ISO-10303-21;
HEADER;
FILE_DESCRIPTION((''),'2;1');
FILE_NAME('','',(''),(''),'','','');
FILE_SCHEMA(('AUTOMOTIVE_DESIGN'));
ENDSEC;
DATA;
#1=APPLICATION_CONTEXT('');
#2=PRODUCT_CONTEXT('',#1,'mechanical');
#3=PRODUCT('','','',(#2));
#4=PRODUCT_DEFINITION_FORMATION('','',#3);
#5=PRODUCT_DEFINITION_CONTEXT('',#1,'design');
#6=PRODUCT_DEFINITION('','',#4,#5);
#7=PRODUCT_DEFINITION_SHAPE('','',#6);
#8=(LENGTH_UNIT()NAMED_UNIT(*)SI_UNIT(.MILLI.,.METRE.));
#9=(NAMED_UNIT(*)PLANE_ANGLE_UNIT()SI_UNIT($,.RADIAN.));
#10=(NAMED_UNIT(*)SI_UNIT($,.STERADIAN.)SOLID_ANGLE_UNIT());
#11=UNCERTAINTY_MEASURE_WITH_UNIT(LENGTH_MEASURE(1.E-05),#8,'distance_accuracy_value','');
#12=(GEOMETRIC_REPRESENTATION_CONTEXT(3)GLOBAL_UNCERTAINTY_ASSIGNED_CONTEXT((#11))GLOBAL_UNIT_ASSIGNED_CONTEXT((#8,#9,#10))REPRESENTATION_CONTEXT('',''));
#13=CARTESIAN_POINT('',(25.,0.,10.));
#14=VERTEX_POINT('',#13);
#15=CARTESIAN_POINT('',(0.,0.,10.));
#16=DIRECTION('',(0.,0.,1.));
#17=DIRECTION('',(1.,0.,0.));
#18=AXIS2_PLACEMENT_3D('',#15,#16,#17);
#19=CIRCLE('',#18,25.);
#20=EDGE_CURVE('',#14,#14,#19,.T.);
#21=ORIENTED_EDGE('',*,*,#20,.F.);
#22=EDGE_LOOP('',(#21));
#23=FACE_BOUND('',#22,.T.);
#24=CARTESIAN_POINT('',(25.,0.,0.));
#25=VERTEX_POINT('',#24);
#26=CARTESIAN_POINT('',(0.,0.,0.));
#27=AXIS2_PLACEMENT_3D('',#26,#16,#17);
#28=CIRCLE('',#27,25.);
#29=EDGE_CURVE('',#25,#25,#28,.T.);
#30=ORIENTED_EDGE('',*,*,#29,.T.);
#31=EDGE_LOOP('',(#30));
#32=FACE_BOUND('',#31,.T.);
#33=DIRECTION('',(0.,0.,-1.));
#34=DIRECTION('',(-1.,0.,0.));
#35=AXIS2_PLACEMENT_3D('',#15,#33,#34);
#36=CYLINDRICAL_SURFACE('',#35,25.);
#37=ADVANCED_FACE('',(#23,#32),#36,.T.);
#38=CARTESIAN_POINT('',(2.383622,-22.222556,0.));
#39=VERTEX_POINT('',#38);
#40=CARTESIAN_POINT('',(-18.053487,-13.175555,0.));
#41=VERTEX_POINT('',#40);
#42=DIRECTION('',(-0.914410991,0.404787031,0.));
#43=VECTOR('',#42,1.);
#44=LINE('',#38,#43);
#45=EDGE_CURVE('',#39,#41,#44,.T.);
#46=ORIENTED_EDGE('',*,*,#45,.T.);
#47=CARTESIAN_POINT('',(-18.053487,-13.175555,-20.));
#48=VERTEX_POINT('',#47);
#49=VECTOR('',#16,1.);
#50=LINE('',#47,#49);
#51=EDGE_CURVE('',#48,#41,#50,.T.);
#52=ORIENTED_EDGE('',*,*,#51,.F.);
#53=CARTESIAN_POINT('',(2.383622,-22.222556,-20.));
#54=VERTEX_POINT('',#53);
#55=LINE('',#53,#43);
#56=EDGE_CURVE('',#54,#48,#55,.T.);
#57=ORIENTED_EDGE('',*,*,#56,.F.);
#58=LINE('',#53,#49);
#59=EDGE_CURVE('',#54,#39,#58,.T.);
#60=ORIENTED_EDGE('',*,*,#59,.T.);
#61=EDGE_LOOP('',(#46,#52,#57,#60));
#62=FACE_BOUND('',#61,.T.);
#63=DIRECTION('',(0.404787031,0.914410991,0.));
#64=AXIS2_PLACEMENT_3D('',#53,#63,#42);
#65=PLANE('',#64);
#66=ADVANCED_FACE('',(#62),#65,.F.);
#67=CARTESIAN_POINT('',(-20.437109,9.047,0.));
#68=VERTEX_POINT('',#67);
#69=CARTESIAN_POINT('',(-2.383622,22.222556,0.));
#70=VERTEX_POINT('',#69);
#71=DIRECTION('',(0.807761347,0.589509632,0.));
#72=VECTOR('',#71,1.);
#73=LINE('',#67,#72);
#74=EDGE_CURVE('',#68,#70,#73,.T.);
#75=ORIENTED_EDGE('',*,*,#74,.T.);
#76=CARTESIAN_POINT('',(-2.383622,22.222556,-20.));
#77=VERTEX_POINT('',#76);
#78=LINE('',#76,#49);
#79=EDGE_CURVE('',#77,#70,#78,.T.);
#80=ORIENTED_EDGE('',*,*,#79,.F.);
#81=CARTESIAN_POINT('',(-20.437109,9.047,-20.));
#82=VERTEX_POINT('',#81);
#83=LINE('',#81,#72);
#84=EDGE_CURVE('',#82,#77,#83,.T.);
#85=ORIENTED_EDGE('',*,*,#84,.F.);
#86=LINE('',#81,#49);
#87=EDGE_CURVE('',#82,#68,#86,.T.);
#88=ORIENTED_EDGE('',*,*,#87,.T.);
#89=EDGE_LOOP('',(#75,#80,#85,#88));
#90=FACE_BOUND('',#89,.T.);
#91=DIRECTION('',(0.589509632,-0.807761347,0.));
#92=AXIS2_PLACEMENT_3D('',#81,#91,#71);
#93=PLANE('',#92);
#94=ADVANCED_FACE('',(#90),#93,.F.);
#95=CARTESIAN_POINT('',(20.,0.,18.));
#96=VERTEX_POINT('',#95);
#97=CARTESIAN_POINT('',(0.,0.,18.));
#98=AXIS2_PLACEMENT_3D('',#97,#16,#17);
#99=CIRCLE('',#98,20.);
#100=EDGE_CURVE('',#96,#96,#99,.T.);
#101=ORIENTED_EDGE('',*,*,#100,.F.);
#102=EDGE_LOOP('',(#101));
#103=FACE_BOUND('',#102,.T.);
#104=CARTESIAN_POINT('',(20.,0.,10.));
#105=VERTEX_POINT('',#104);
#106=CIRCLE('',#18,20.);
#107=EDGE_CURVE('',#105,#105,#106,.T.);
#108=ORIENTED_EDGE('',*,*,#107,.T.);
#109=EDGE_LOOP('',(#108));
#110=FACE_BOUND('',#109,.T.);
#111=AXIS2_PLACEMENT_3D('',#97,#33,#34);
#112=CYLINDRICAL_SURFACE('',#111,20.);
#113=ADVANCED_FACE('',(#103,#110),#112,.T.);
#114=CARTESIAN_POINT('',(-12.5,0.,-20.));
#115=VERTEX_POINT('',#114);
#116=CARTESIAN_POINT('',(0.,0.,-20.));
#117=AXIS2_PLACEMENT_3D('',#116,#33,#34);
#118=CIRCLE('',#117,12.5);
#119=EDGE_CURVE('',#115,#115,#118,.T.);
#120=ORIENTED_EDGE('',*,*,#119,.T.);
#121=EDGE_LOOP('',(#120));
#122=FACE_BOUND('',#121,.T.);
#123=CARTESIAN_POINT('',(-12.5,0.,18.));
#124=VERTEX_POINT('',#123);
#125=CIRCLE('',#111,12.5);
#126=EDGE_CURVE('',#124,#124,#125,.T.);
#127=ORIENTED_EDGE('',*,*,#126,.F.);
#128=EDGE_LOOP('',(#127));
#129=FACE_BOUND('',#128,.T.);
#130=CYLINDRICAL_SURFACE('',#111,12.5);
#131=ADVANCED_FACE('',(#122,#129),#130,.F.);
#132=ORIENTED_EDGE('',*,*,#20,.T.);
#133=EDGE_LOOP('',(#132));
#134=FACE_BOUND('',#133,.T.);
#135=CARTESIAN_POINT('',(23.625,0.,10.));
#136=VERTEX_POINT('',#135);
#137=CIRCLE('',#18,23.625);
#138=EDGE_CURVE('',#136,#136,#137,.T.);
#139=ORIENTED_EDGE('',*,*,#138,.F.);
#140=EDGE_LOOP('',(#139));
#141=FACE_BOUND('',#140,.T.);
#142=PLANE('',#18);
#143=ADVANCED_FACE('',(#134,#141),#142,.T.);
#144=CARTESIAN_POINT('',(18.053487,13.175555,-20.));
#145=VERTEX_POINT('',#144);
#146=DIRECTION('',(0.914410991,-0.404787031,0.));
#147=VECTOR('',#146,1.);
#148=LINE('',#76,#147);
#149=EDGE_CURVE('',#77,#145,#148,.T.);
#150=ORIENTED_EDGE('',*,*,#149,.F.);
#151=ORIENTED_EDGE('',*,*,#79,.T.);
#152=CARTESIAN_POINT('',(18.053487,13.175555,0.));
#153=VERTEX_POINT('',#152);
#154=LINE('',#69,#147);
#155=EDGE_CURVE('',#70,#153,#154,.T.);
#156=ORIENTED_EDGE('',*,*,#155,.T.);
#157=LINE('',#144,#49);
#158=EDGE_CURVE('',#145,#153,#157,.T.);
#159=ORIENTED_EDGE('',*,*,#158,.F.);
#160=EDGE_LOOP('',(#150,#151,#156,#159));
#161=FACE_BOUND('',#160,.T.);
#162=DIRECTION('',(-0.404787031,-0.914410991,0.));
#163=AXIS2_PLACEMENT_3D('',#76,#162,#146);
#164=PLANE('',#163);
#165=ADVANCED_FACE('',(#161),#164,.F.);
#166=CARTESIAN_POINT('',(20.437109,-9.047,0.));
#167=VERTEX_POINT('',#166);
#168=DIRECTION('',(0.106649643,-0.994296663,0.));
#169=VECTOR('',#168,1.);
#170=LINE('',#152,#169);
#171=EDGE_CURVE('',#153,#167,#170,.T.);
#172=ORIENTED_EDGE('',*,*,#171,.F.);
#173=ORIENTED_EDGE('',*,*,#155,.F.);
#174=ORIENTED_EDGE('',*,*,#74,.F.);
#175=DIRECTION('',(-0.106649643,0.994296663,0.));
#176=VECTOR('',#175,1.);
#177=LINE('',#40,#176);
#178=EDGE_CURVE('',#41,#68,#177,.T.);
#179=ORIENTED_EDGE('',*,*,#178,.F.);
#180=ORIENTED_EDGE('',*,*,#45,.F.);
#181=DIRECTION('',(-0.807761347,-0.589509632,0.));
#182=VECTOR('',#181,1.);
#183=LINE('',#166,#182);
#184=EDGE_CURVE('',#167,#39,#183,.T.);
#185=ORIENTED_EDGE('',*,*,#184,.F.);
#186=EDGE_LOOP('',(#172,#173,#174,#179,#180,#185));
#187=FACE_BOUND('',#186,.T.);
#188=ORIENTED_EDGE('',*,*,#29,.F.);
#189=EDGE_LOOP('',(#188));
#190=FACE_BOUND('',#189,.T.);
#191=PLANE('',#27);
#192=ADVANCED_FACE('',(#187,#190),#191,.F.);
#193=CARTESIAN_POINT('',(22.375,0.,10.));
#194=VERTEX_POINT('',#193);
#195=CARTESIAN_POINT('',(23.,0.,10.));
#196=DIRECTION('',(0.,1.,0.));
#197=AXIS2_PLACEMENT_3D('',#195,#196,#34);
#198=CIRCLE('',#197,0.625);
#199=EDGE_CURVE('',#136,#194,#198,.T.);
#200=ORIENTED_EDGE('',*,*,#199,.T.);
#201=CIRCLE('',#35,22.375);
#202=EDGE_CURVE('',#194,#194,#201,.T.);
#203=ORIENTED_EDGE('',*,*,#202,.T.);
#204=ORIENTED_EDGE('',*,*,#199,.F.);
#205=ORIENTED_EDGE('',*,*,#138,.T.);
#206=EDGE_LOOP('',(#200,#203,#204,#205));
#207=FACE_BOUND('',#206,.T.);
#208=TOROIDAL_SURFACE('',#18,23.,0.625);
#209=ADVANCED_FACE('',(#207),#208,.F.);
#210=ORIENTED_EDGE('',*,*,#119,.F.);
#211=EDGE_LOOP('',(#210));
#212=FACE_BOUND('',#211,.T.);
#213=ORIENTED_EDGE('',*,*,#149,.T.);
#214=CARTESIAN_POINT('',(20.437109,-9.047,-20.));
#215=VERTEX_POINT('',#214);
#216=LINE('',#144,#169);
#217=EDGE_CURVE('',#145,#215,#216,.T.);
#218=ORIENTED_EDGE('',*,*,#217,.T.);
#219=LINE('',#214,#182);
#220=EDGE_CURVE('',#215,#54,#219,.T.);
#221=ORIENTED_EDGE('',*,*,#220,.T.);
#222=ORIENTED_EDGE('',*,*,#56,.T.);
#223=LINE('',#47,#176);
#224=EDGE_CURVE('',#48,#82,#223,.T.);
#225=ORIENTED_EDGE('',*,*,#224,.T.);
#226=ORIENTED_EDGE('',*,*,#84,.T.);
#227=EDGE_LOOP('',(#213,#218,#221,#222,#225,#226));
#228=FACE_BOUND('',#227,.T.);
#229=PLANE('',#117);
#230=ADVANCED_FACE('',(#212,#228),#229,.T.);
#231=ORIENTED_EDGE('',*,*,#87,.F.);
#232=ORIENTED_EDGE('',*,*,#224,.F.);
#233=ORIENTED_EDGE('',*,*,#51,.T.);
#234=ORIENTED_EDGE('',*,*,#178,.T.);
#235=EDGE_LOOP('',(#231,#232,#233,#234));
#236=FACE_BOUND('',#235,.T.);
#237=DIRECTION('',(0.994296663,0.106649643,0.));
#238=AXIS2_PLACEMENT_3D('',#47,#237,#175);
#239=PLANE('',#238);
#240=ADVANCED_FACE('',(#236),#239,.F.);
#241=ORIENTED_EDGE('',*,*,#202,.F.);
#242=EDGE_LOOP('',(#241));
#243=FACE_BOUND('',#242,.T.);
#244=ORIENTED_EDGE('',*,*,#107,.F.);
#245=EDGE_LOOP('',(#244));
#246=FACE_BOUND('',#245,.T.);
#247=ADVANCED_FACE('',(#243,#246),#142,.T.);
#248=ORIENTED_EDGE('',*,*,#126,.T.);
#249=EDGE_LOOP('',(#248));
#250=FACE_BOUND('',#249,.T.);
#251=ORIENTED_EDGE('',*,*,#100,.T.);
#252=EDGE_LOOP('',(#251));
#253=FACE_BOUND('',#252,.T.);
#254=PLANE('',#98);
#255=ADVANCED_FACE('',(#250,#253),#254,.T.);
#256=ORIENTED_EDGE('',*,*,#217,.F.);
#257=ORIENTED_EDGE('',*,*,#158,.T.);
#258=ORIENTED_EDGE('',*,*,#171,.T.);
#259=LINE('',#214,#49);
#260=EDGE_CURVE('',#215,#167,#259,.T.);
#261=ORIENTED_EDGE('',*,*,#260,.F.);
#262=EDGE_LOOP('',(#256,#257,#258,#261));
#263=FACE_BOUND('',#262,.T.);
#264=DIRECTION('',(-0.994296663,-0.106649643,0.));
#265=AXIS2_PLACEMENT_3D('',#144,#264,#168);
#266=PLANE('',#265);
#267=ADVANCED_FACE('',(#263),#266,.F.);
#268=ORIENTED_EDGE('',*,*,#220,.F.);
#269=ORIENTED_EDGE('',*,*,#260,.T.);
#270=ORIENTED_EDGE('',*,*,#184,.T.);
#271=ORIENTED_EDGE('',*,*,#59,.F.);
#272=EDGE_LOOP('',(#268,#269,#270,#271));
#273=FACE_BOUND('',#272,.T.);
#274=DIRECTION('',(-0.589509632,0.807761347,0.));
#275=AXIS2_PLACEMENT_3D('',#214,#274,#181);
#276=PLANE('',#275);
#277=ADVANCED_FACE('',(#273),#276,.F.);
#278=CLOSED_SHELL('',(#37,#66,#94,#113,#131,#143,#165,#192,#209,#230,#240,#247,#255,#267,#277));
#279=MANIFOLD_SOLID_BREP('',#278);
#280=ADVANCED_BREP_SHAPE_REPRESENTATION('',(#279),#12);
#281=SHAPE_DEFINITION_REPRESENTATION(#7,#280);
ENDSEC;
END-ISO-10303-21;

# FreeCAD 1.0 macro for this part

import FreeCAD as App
import Part
import Sketcher
Q = App.Units.Quantity

doc = App.newDocument("Part")
body = doc.addObject("PartDesign::Body", "Body")

sketch1 = body.newObject("Sketcher::SketchObject", "Sketch")
sketch1.AttachmentSupport = (doc.getObject("XY_Plane"), [""])
sketch1.MapMode = "FlatFace"
sketch1.addGeometry(Part.Circle(App.Vector(0, 0, 0), App.Vector(0, 0, 1), 25), False)
sketch1.addConstraint(Sketcher.Constraint("Coincident", 0, 3, -1, 1))
sketch1.addConstraint(Sketcher.Constraint("Diameter", 0, Q("50 mm")))
pad1 = body.newObject("PartDesign::Pad", "Pad")
pad1.Profile = sketch1
pad1.Length = 10

sketch2 = body.newObject("Sketcher::SketchObject", "Sketch001")
sketch2.AttachmentSupport = (doc.getObject("XY_Plane"), [""])
sketch2.MapMode = "FlatFace"
sketch2.AttachmentOffset = App.Placement(App.Vector(0, 0, 10), App.Rotation())
sketch2.addGeometry(Part.Circle(App.Vector(0, 0, 0), App.Vector(0, 0, 1), 20), False)
sketch2.addConstraint(Sketcher.Constraint("Coincident", 0, 3, -1, 1))
sketch2.addConstraint(Sketcher.Constraint("Diameter", 0, Q("40 mm")))
pad2 = body.newObject("PartDesign::Pad", "Pad001")
pad2.Profile = sketch2
pad2.Length = 8

sketch3 = body.newObject("Sketcher::SketchObject", "Sketch002")
sketch3.AttachmentSupport = (doc.getObject("XY_Plane"), [""])
sketch3.MapMode = "FlatFace"
sketch3.addGeometry(Part.LineSegment(App.Vector(20, -9, 0), App.Vector(2, -22, 0)), False)
sketch3.addGeometry(Part.LineSegment(App.Vector(2, -22, 0), App.Vector(-18, -13, 0)), False)
sketch3.addGeometry(Part.LineSegment(App.Vector(-18, -13, 0), App.Vector(-20, 9, 0)), False)
sketch3.addGeometry(Part.LineSegment(App.Vector(-20, 9, 0), App.Vector(-2, 22, 0)), False)
sketch3.addGeometry(Part.LineSegment(App.Vector(-2, 22, 0), App.Vector(18, 13, 0)), False)
sketch3.addGeometry(Part.LineSegment(App.Vector(18, 13, 0), App.Vector(20, -9, 0)), False)
sketch3.addConstraint(Sketcher.Constraint("Coincident", 0, 2, 1, 1))
sketch3.addConstraint(Sketcher.Constraint("Coincident", 1, 2, 2, 1))
sketch3.addConstraint(Sketcher.Constraint("Coincident", 2, 2, 3, 1))
sketch3.addConstraint(Sketcher.Constraint("Coincident", 3, 2, 4, 1))
sketch3.addConstraint(Sketcher.Constraint("Coincident", 4, 2, 5, 1))
sketch3.addConstraint(Sketcher.Constraint("Coincident", 5, 2, 0, 1))
sketch3.addConstraint(Sketcher.Constraint("Symmetric", 0, 2, 3, 2, -1, 1))
sketch3.addConstraint(Sketcher.Constraint("Symmetric", 1, 2, 4, 2, -1, 1))
sketch3.addConstraint(Sketcher.Constraint("Symmetric", 2, 2, 5, 2, -1, 1))
sketch3.addConstraint(Sketcher.Constraint("Equal", 0, 1))
sketch3.addConstraint(Sketcher.Constraint("Equal", 1, 2))
sketch3.addConstraint(Sketcher.Constraint("DistanceY", -1, 1, 2, 2, Q("9.047 mm")))
sketch3.addConstraint(Sketcher.Constraint("DistanceY", 0, 2, 1, 2, Q("9.047 mm")))
sketch3.addConstraint(Sketcher.Constraint("DistanceX", 2, 2, -1, 1, Q("20.437109 mm")))
sketch3.addConstraint(Sketcher.Constraint("DistanceX", 1, 2, 0, 2, Q("20.437109 mm")))
pad3 = body.newObject("PartDesign::Pad", "Pad002")
pad3.Profile = sketch3
pad3.Length = 20
pad3.Reversed = True

sketch4 = body.newObject("Sketcher::SketchObject", "Sketch003")
sketch4.AttachmentSupport = (doc.getObject("XY_Plane"), [""])
sketch4.MapMode = "FlatFace"
sketch4.AttachmentOffset = App.Placement(App.Vector(0, 0, -20), App.Rotation())
sketch4.addGeometry(Part.Circle(App.Vector(0, 0, 0), App.Vector(0, 0, 1), 12), False)
sketch4.addConstraint(Sketcher.Constraint("Coincident", 0, 3, -1, 1))
sketch4.addConstraint(Sketcher.Constraint("Diameter", 0, Q("25 mm")))
pocket1 = body.newObject("PartDesign::Pocket", "Pocket")
pocket1.Profile = sketch4
pocket1.Type = "ThroughAll"
pocket1.Reversed = True

sketch5 = body.newObject("Sketcher::SketchObject", "Sketch004")
sketch5.AttachmentSupport = (doc.getObject("XZ_Plane"), [""])
sketch5.MapMode = "FlatFace"
sketch5.addGeometry(Part.Circle(App.Vector(23, 10, 0), App.Vector(0, 0, 1), 0.6), False)
sketch5.addConstraint(Sketcher.Constraint("Diameter", 0, Q("1.25 mm")))
sketch5.addConstraint(Sketcher.Constraint("DistanceX", -1, 1, 0, 3, Q("23 mm")))
sketch5.addConstraint(Sketcher.Constraint("DistanceY", -1, 1, 0, 3, Q("10 mm")))

sketch6 = body.newObject("Sketcher::SketchObject", "Sketch005")
sketch6.AttachmentSupport = (doc.getObject("XY_Plane"), [""])
sketch6.MapMode = "FlatFace"
sketch6.AttachmentOffset = App.Placement(App.Vector(0, 0, 10), App.Rotation())
sketch6.addGeometry(Part.Circle(App.Vector(0, 0, 0), App.Vector(0, 0, 1), 23), False)
sketch6.addConstraint(Sketcher.Constraint("Coincident", 0, 3, -1, 1))
sketch6.addConstraint(Sketcher.Constraint("Diameter", 0, Q("46 mm")))
doc.recompute()

subtractivepipe = body.newObject("PartDesign::SubtractivePipe", "SubtractivePipe")
subtractivepipe.Profile = sketch5
subtractivepipe.Spine = (sketch6, ["Edge1"])

doc.recompute()
